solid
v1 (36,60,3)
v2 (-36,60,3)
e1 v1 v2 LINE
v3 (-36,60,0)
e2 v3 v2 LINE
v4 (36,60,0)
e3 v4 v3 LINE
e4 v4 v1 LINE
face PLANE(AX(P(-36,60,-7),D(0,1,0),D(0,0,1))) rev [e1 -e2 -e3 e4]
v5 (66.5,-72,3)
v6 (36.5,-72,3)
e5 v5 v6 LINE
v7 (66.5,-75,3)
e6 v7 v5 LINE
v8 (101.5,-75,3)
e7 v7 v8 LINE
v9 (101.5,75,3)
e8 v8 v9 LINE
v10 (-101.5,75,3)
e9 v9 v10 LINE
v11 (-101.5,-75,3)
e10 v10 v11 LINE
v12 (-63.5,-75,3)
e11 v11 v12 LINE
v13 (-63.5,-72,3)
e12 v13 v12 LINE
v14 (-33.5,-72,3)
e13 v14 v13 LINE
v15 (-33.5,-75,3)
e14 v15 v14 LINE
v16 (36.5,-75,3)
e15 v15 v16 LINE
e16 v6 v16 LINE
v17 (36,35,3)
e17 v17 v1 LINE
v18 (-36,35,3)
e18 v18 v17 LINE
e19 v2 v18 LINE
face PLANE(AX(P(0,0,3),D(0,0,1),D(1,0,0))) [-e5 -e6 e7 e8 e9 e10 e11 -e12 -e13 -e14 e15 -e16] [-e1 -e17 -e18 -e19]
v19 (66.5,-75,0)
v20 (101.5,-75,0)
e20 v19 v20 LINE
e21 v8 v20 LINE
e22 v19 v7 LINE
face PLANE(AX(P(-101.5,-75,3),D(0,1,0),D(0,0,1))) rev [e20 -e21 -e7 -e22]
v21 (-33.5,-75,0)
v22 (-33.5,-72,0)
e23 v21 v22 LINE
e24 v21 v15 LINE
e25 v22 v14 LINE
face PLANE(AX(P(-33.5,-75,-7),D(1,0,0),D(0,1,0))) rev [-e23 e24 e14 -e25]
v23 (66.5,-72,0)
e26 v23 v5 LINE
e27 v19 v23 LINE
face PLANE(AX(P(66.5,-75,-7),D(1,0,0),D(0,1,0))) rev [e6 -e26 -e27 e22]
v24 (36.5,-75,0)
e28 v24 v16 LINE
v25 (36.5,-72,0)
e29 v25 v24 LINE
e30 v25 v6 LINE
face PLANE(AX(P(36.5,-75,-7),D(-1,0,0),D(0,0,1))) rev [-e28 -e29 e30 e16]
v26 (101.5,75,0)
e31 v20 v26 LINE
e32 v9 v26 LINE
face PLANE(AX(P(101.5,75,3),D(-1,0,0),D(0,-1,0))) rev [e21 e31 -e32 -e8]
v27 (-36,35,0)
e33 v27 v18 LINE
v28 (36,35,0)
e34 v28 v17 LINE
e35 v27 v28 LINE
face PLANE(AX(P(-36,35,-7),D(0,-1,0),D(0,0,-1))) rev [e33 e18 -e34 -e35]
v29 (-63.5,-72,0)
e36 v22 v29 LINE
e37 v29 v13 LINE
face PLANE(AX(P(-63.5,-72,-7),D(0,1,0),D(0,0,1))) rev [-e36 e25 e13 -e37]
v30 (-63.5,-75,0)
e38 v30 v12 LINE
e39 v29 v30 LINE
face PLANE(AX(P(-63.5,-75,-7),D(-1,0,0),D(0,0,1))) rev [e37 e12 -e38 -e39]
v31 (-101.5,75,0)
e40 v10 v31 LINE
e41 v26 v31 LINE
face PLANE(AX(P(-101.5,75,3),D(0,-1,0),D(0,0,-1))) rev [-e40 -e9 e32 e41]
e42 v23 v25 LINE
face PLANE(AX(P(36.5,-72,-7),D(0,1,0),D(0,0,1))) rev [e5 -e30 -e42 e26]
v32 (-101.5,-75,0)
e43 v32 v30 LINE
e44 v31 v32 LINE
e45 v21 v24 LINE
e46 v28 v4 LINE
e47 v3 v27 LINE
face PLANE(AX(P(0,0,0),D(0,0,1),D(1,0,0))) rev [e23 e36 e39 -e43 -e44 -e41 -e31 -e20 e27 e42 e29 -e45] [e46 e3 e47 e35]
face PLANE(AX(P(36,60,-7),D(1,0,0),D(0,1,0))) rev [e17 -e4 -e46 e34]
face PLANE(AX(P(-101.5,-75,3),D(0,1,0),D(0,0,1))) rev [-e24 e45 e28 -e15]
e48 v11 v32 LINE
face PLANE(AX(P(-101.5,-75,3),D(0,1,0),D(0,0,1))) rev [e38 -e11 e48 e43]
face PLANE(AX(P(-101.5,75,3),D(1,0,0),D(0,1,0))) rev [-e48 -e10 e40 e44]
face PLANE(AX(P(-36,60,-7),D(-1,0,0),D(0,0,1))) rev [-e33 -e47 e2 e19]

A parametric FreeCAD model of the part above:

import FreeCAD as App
import Part
import Sketcher
from FreeCAD import Vector

doc = App.newDocument("Part")
params = doc.addObject("Spreadsheet::Sheet", "Params")
for row, (alias, value) in enumerate([
    ("sketch1_width", "203 mm"),
    ("sketch1_height", "150 mm"),
    ("pad1_length", "3 mm"),
    ("sketch2_width", "72 mm"),
    ("sketch2_height", "25 mm"),
    ("pocket1_length", "10 mm"),
    ("sketch3_width", "30 mm"),
    ("sketch3_height", "3 mm"),
    ("pocket2_length", "10 mm"),
], start=1):
    params.set(f"A{row}", alias)
    params.set(f"B{row}", "=" + value)
    params.setAlias(f"B{row}", alias)

body = doc.addObject("PartDesign::Body", "Body")

# Sketch on XY plane
sketch1 = body.newObject("Sketcher::SketchObject", "Sketch")
sketch1.AttachmentSupport = (doc.getObject("XY_Plane"), [""])
sketch1.MapMode = "FlatFace"
sketch1.addGeometry([
    Part.LineSegment(Vector(-101.5, 75, 0), Vector(-101.5, -75, 0)),
    Part.LineSegment(Vector(-101.5, -75, 0), Vector(101.5, -75, 0)),
    Part.LineSegment(Vector(101.5, -75, 0), Vector(101.5, 75, 0)),
    Part.LineSegment(Vector(101.5, 75, 0), Vector(-101.5, 75, 0)),
], False)
sketch1.addConstraint([
    Sketcher.Constraint("Coincident", 0, 2, 1, 1),
    Sketcher.Constraint("Coincident", 1, 2, 2, 1),
    Sketcher.Constraint("Coincident", 2, 2, 3, 1),
    Sketcher.Constraint("Coincident", 3, 2, 0, 1),
    Sketcher.Constraint("Vertical", 0),
    Sketcher.Constraint("Horizontal", 1),
    Sketcher.Constraint("Vertical", 2),
    Sketcher.Constraint("Horizontal", 3),
    Sketcher.Constraint("Symmetric", 0, 2, 2, 2, -1, 1),
    Sketcher.Constraint("DistanceX", 1, 1, 1, 2, 203.0),
    Sketcher.Constraint("DistanceY", 0, 2, 0, 1, 150.0),
])
sketch1.setExpression("Constraints[9]", "Params.sketch1_width")
sketch1.setExpression("Constraints[10]", "Params.sketch1_height")
pad1 = body.newObject("PartDesign::Pad", "Pad")
pad1.Profile = sketch1
pad1.setExpression("Length", "Params.pad1_length")

# Sketch on XY plane
sketch2 = body.newObject("Sketcher::SketchObject", "Sketch001")
sketch2.AttachmentSupport = (doc.getObject("XY_Plane"), [""])
sketch2.MapMode = "FlatFace"
sketch2.AttachmentOffset = App.Placement(Vector(0, 0, 3), App.Rotation())
sketch2.addGeometry([
    Part.LineSegment(Vector(-36, 60, 0), Vector(-36, 35, 0)),
    Part.LineSegment(Vector(-36, 35, 0), Vector(36, 35, 0)),
    Part.LineSegment(Vector(36, 35, 0), Vector(36, 60, 0)),
    Part.LineSegment(Vector(36, 60, 0), Vector(-36, 60, 0)),
], False)
sketch2.addConstraint([
    Sketcher.Constraint("Coincident", 0, 2, 1, 1),
    Sketcher.Constraint("Coincident", 1, 2, 2, 1),
    Sketcher.Constraint("Coincident", 2, 2, 3, 1),
    Sketcher.Constraint("Coincident", 3, 2, 0, 1),
    Sketcher.Constraint("Vertical", 0),
    Sketcher.Constraint("Horizontal", 1),
    Sketcher.Constraint("Vertical", 2),
    Sketcher.Constraint("Horizontal", 3),
    Sketcher.Constraint("DistanceX", 1, 1, 1, 2, 72.0),
    Sketcher.Constraint("DistanceY", 0, 2, 0, 1, 25.0),
    Sketcher.Constraint("DistanceX", 0, 2, -1, 1, 36.0),
    Sketcher.Constraint("DistanceY", -1, 1, 0, 2, 35.0),
])
sketch2.setExpression("Constraints[8]", "Params.sketch2_width")
sketch2.setExpression("Constraints[9]", "Params.sketch2_height")
pocket1 = body.newObject("PartDesign::Pocket", "Pocket")
pocket1.Profile = sketch2
pocket1.setExpression("Length", "Params.pocket1_length")

# Sketch on XY plane
sketch3 = body.newObject("Sketcher::SketchObject", "Sketch002")
sketch3.AttachmentSupport = (doc.getObject("XY_Plane"), [""])
sketch3.MapMode = "FlatFace"
sketch3.AttachmentOffset = App.Placement(Vector(0, 0, 3), App.Rotation())
sketch3.addGeometry([
    Part.LineSegment(Vector(-63.5, -72, 0), Vector(-63.5, -75, 0)),  # 0
    Part.LineSegment(Vector(-63.5, -75, 0), Vector(-33.5, -75, 0)),  # 1
    Part.LineSegment(Vector(-33.5, -75, 0), Vector(-33.5, -72, 0)),  # 2
    Part.LineSegment(Vector(-33.5, -72, 0), Vector(-63.5, -72, 0)),  # 3
    Part.LineSegment(Vector(36.5, -72, 0), Vector(36.5, -75, 0)),  # 4
    Part.LineSegment(Vector(36.5, -75, 0), Vector(66.5, -75, 0)),  # 5
    Part.LineSegment(Vector(66.5, -75, 0), Vector(66.5, -72, 0)),  # 6
    Part.LineSegment(Vector(66.5, -72, 0), Vector(36.5, -72, 0)),  # 7
], False)
sketch3.addConstraint([
    Sketcher.Constraint("Coincident", 0, 2, 1, 1),
    Sketcher.Constraint("Coincident", 1, 2, 2, 1),
    Sketcher.Constraint("Coincident", 2, 2, 3, 1),
    Sketcher.Constraint("Coincident", 3, 2, 0, 1),
    Sketcher.Constraint("Coincident", 4, 2, 5, 1),
    Sketcher.Constraint("Coincident", 5, 2, 6, 1),
    Sketcher.Constraint("Coincident", 6, 2, 7, 1),
    Sketcher.Constraint("Coincident", 7, 2, 4, 1),
    Sketcher.Constraint("Vertical", 0),
    Sketcher.Constraint("Horizontal", 1),
    Sketcher.Constraint("Vertical", 2),
    Sketcher.Constraint("Horizontal", 3),
    Sketcher.Constraint("Vertical", 4),
    Sketcher.Constraint("Horizontal", 5),
    Sketcher.Constraint("Vertical", 6),
    Sketcher.Constraint("Horizontal", 7),
    Sketcher.Constraint("Horizontal", 1, 2, 4, 2),
    Sketcher.Constraint("Horizontal", 3, 2, 6, 2),
    Sketcher.Constraint("Equal", 3, 5),
    Sketcher.Constraint("DistanceX", 1, 1, 1, 2, 30.0),
    Sketcher.Constraint("DistanceY", 0, 2, 0, 1, 3.0),
    Sketcher.Constraint("DistanceY", 0, 2, -1, 1, 75.0),
    Sketcher.Constraint("DistanceX", 1, 2, 4, 2, 70.0),
    Sketcher.Constraint("DistanceX", 0, 2, -1, 1, 63.5),
])
sketch3.setExpression("Constraints[19]", "Params.sketch3_width")
sketch3.setExpression("Constraints[20]", "Params.sketch3_height")
pocket2 = body.newObject("PartDesign::Pocket", "Pocket001")
pocket2.Profile = sketch3
pocket2.setExpression("Length", "Params.pocket2_length")

doc.recompute()
